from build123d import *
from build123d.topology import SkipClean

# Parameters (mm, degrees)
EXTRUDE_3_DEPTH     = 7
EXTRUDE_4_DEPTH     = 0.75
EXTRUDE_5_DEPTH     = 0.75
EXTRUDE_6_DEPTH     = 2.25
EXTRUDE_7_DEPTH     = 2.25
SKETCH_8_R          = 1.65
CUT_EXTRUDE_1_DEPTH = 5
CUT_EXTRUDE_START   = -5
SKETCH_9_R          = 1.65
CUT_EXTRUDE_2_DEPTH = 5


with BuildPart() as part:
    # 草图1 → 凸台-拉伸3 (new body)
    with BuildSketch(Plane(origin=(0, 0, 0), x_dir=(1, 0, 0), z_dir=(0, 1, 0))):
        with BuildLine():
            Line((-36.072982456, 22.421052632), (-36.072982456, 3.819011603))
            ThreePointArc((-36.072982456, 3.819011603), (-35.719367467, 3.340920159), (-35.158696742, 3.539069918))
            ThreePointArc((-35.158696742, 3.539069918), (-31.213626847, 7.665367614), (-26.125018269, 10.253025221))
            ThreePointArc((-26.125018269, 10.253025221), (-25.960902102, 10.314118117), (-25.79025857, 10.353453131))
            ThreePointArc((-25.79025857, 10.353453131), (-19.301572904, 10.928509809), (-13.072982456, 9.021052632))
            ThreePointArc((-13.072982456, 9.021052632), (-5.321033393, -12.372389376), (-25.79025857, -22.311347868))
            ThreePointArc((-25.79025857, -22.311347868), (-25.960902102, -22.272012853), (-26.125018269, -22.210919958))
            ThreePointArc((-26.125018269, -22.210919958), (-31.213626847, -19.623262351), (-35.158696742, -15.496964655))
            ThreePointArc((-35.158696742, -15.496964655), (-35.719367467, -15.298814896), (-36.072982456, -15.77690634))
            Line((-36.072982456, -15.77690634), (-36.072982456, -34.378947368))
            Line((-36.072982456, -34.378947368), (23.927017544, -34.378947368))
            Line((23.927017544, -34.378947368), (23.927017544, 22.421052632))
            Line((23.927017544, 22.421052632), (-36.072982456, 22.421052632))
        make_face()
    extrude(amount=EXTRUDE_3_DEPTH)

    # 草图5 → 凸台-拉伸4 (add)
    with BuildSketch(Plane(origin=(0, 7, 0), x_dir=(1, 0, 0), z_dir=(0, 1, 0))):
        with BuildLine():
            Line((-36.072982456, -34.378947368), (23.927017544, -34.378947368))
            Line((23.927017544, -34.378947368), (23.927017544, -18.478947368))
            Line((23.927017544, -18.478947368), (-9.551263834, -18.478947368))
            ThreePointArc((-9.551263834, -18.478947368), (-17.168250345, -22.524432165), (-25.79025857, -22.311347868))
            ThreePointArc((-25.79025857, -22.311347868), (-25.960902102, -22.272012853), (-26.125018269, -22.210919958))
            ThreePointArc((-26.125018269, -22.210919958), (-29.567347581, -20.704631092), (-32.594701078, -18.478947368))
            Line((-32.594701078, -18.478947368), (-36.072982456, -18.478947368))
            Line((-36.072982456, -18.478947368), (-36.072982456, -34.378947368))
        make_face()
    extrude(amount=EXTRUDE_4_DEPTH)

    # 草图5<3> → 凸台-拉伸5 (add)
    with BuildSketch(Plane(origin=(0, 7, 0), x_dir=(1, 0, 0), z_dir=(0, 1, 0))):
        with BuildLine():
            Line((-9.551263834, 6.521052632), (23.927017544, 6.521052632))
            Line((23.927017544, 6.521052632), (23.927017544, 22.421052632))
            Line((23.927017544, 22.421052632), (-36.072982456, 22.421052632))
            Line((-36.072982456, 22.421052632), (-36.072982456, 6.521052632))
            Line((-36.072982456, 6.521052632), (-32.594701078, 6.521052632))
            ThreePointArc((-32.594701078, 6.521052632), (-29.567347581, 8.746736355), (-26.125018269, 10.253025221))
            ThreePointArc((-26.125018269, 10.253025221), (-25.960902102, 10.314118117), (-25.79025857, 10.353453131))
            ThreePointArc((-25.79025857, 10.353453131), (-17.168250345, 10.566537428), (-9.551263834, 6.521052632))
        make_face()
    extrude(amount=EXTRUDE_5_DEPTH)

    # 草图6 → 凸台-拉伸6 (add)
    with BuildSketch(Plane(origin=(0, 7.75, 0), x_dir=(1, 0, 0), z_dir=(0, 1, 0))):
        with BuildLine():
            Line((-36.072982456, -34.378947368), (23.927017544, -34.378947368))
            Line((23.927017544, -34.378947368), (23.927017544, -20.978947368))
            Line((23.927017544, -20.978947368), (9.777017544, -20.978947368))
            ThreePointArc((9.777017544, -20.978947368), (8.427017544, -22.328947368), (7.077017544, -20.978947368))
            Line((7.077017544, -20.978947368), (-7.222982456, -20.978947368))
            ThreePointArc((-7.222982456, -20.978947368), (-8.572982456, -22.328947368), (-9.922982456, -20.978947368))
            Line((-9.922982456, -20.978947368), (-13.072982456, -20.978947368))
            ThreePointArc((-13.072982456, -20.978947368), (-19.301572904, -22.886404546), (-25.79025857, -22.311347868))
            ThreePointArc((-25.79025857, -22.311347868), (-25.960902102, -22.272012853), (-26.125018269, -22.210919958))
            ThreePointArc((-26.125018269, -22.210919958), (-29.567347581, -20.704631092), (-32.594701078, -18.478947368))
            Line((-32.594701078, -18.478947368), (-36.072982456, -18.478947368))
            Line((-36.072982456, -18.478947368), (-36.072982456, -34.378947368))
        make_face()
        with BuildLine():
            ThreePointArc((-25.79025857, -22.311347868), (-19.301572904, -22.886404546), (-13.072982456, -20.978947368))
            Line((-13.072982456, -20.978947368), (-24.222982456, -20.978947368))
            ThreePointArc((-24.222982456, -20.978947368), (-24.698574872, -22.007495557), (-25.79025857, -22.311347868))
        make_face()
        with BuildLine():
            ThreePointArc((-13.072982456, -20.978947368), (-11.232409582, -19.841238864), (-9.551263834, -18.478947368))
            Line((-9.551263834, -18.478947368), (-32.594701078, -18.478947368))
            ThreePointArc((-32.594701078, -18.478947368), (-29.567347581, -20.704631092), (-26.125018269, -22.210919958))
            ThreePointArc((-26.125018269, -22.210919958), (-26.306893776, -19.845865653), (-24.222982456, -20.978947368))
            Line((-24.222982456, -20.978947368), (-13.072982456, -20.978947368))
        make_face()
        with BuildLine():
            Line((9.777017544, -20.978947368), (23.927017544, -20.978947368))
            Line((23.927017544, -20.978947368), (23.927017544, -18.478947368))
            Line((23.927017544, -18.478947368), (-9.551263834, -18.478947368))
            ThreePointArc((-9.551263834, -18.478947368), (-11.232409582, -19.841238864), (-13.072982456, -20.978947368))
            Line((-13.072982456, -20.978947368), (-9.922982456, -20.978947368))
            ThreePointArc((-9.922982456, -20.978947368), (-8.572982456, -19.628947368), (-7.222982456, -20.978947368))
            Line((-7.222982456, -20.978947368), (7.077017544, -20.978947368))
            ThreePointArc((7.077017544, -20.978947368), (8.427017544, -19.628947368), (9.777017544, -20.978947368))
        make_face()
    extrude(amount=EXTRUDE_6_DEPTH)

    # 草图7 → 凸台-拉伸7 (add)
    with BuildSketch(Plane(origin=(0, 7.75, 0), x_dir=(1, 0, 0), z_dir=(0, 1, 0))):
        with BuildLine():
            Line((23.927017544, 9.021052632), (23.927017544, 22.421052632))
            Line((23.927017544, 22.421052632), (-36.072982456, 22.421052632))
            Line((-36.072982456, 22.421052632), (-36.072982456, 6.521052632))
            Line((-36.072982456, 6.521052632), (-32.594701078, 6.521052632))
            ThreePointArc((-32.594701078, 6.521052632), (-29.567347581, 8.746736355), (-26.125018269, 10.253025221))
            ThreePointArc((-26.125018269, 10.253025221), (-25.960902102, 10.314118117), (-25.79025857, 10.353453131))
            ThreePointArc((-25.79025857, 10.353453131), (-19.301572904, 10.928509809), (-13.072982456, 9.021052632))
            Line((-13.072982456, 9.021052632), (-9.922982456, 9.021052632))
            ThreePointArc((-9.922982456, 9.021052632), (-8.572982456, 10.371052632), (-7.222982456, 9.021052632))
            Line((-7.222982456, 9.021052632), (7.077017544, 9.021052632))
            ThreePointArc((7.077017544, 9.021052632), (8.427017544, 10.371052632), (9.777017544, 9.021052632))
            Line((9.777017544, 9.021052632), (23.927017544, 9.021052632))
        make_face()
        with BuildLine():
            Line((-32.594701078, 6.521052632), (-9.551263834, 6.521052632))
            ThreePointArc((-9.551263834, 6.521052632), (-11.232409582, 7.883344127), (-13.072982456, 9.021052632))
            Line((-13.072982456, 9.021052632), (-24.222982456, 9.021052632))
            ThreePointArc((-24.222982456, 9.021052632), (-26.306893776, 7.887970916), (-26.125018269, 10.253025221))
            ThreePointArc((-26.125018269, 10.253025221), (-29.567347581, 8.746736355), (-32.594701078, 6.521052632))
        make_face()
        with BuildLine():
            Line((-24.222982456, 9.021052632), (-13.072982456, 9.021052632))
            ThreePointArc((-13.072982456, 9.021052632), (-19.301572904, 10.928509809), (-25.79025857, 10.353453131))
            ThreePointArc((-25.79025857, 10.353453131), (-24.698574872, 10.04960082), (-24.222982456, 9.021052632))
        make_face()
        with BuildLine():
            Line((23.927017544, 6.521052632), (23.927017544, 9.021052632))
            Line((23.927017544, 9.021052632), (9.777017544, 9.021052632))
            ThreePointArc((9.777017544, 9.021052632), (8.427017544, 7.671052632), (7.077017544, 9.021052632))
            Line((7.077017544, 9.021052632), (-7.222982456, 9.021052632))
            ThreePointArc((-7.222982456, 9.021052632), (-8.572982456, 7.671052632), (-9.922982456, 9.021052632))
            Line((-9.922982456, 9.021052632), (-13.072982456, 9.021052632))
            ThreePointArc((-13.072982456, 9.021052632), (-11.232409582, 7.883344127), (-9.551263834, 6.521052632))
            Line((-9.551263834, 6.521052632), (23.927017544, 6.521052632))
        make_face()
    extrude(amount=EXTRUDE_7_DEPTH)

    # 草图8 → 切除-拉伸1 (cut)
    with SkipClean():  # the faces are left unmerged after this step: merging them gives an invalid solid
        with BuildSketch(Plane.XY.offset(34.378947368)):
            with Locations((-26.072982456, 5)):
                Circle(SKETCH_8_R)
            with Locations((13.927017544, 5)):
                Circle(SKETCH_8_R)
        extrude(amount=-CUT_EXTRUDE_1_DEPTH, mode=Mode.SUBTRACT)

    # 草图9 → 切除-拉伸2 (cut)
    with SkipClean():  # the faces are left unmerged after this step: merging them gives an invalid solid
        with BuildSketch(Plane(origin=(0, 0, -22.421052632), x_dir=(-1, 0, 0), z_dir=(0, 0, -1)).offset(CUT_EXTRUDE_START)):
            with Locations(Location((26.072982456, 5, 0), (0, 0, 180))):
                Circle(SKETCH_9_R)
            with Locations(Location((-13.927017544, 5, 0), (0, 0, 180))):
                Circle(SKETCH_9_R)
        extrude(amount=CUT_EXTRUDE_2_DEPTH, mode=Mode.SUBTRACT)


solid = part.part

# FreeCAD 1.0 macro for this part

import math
import FreeCAD as App
import Part
import Sketcher

V = App.Vector
Q = App.Units.Quantity

doc = App.newDocument("Part")
body = doc.addObject("PartDesign::Body", "Body")

sketch1 = body.newObject("Sketcher::SketchObject", "Sketch")
sketch1.AttachmentSupport = (doc.getObject("XZ_Plane"), [""])
sketch1.MapMode = "FlatFace"
sketch1.addGeometry([
    Part.LineSegment(V(-36.072982, -22.421053, 0), V(-36.072982, -3.819012, 0)),
    Part.ArcOfCircle(Part.Circle(V(-35.572982, -3.819012, 0), V(0, 0, 1), 0.5), math.radians(34.047732), math.radians(180)),
    Part.ArcOfCircle(Part.Circle(V(-21.072982, 5.978947, 0), V(0, 0, 1), 17), math.radians(-145.952268), math.radians(-107.28822)),
    Part.ArcOfCircle(Part.Circle(V(-25.572982, -9.021053, 0), V(0, 0, 1), 1.35), math.radians(-114.136721), math.radians(-99.261767)),
    Part.ArcOfCircle(Part.Circle(V(-21.072982, 5.978947, 0), V(0, 0, 1), 17), math.radians(-106.110268), math.radians(-61.927513)),
    Part.ArcOfCircle(Part.Circle(V(-21.072982, 5.978947, 0), V(0, 0, 1), 17), math.radians(-61.927513), math.radians(106.110268)),
    Part.ArcOfCircle(Part.Circle(V(-25.572982, 20.978947, 0), V(0, 0, 1), 1.35), math.radians(99.261768), math.radians(114.136721)),
    Part.ArcOfCircle(Part.Circle(V(-21.072982, 5.978947, 0), V(0, 0, 1), 17), math.radians(107.28822), math.radians(145.952268)),
    Part.ArcOfCircle(Part.Circle(V(-35.572982, 15.776906, 0), V(0, 0, 1), 0.5), math.radians(180), math.radians(325.952268)),
    Part.LineSegment(V(-36.072982, 15.776906, 0), V(-36.072982, 34.378947, 0)),
    Part.LineSegment(V(-36.072982, 34.378947, 0), V(23.927018, 34.378947, 0)),
    Part.LineSegment(V(23.927018, 34.378947, 0), V(23.927018, -22.421053, 0)),
    Part.LineSegment(V(23.927018, -22.421053, 0), V(-36.072982, -22.421053, 0)),
], False)
sketch1.addConstraint([
    Sketcher.Constraint("Tangent", 0, 2, 1, 2),
    Sketcher.Constraint("Tangent", 1, 1, 2, 1),
    Sketcher.Constraint("Coincident", 2, 2, 3, 1),
    Sketcher.Constraint("Coincident", 3, 2, 4, 1),
    Sketcher.Constraint("Tangent", 4, 2, 5, 1),
    Sketcher.Constraint("Coincident", 5, 2, 6, 1),
    Sketcher.Constraint("Coincident", 6, 2, 7, 1),
    Sketcher.Constraint("Tangent", 7, 2, 8, 2),
    Sketcher.Constraint("Tangent", 8, 1, 9, 1),
    Sketcher.Constraint("Coincident", 9, 2, 10, 1),
    Sketcher.Constraint("Coincident", 10, 2, 11, 1),
    Sketcher.Constraint("Coincident", 11, 2, 12, 1),
    Sketcher.Constraint("Coincident", 12, 2, 0, 1),
    Sketcher.Constraint("Vertical", 0),
    Sketcher.Constraint("Vertical", 9),
    Sketcher.Constraint("Horizontal", 10),
    Sketcher.Constraint("Vertical", 11),
    Sketcher.Constraint("Horizontal", 12),
    Sketcher.Constraint("Coincident", 4, 3, 2, 3),
    Sketcher.Constraint("Coincident", 7, 3, 2, 3),
    Sketcher.Constraint("Equal", 2, 4),
    Sketcher.Constraint("Equal", 4, 5),
    Sketcher.Constraint("Equal", 3, 6),
    Sketcher.Constraint("Equal", 5, 7),
    Sketcher.Constraint("Equal", 1, 8),
    Sketcher.Constraint("Horizontal", 3, 3, 4, 2),
    Sketcher.Constraint("Vertical", 3, 3, 6, 3),
    Sketcher.Constraint("Vertical", 1, 3, 8, 3),
    Sketcher.Constraint("Vertical", 3, 2, 5, 2),
    Sketcher.Constraint("Equal", 0, 9),
    Sketcher.Constraint("Radius", 2, Q("17 mm")),
    Sketcher.Constraint("Radius", 1, Q("0.5 mm")),
    Sketcher.Constraint("DistanceX", 10, 1, 10, 2, Q("60 mm")),
    Sketcher.Constraint("Radius", 3, Q("1.35 mm")),
    Sketcher.Constraint("DistanceY", 11, 2, 11, 1, Q("56.8 mm")),
    Sketcher.Constraint("DistanceX", 1, 3, 3, 3, Q("10 mm")),
    Sketcher.Constraint("DistanceY", 3, 3, 2, 3, Q("15 mm")),
    Sketcher.Constraint("DistanceX", 0, 2, 5, 3, Q("15 mm")),
    Sketcher.Constraint("DistanceY", 1, 3, -1, 1, Q("3.819012 mm")),
    Sketcher.Constraint("DistanceX", 2, 2, -1, 1, Q("26.125018 mm")),
])
pad1 = body.newObject("PartDesign::Pad", "Pad")
pad1.Profile = sketch1
pad1.Length = 7
pad1.Reversed = True

sketch2 = body.newObject("Sketcher::SketchObject", "Sketch001")
sketch2.AttachmentSupport = (doc.getObject("XZ_Plane"), [""])
sketch2.MapMode = "FlatFace"
sketch2.AttachmentOffset = App.Placement(V(0, 0, -7), App.Rotation())
sketch2.addGeometry([
    Part.LineSegment(V(-36.072982, 34.378947, 0), V(23.927018, 34.378947, 0)),
    Part.LineSegment(V(23.927018, 34.378947, 0), V(23.927018, 18.478947, 0)),
    Part.LineSegment(V(23.927018, 18.478947, 0), V(-9.551264, 18.478947, 0)),
    Part.ArcOfCircle(Part.Circle(V(-21.072982, 5.978947, 0), V(0, 0, 1), 17), math.radians(47.332075), math.radians(106.110268)),
    Part.ArcOfCircle(Part.Circle(V(-25.572982, 20.978947, 0), V(0, 0, 1), 1.35), math.radians(99.261768), math.radians(114.136721)),
    Part.ArcOfCircle(Part.Circle(V(-21.072982, 5.978947, 0), V(0, 0, 1), 17), math.radians(107.28822), math.radians(132.667926)),
    Part.LineSegment(V(-32.594701, 18.478947, 0), V(-36.072982, 18.478947, 0)),
    Part.LineSegment(V(-36.072982, 18.478947, 0), V(-36.072982, 34.378947, 0)),
], False)
sketch2.addConstraint([
    Sketcher.Constraint("Coincident", 0, 2, 1, 1),
    Sketcher.Constraint("Coincident", 1, 2, 2, 1),
    Sketcher.Constraint("Coincident", 2, 2, 3, 1),
    Sketcher.Constraint("Coincident", 3, 2, 4, 1),
    Sketcher.Constraint("Coincident", 4, 2, 5, 1),
    Sketcher.Constraint("Coincident", 5, 2, 6, 1),
    Sketcher.Constraint("Coincident", 6, 2, 7, 1),
    Sketcher.Constraint("Coincident", 7, 2, 0, 1),
    Sketcher.Constraint("Horizontal", 0),
    Sketcher.Constraint("Vertical", 1),
    Sketcher.Constraint("Horizontal", 2),
    Sketcher.Constraint("Horizontal", 6),
    Sketcher.Constraint("Vertical", 7),
    Sketcher.Constraint("Coincident", 5, 3, 3, 3),
    Sketcher.Constraint("Equal", 3, 5),
    Sketcher.Constraint("Horizontal", 2, 2, 5, 2),
    Sketcher.Constraint("Radius", 3, Q("17 mm")),
    Sketcher.Constraint("DistanceX", 0, 1, 0, 2, Q("60 mm")),
    Sketcher.Constraint("Radius", 4, Q("1.35 mm")),
    Sketcher.Constraint("DistanceY", 1, 2, 1, 1, Q("15.9 mm")),
    Sketcher.Constraint("DistanceY", 3, 3, 4, 3, Q("15 mm")),
    Sketcher.Constraint("DistanceX", 3, 3, 0, 2, Q("45 mm")),
    Sketcher.Constraint("DistanceX", 4, 3, 3, 3, Q("4.5 mm")),
    Sketcher.Constraint("DistanceY", 4, 3, 0, 2, Q("13.4 mm")),
    Sketcher.Constraint("DistanceX", 5, 2, -1, 1, Q("32.594701 mm")),
    Sketcher.Constraint("DistanceY", -1, 1, 4, 2, Q("22.21092 mm")),
])
pad2 = body.newObject("PartDesign::Pad", "Pad001")
pad2.Profile = sketch2
pad2.Length = 0.75
pad2.Reversed = True

sketch3 = body.newObject("Sketcher::SketchObject", "Sketch002")
sketch3.AttachmentSupport = (doc.getObject("XZ_Plane"), [""])
sketch3.MapMode = "FlatFace"
sketch3.AttachmentOffset = App.Placement(V(0, 0, -7), App.Rotation())
sketch3.addGeometry([
    Part.LineSegment(V(-9.551264, -6.521053, 0), V(23.927018, -6.521053, 0)),
    Part.LineSegment(V(23.927018, -6.521053, 0), V(23.927018, -22.421053, 0)),
    Part.LineSegment(V(23.927018, -22.421053, 0), V(-36.072982, -22.421053, 0)),
    Part.LineSegment(V(-36.072982, -22.421053, 0), V(-36.072982, -6.521053, 0)),
    Part.LineSegment(V(-36.072982, -6.521053, 0), V(-32.594701, -6.521053, 0)),
    Part.ArcOfCircle(Part.Circle(V(-21.072982, 5.978947, 0), V(0, 0, 1), 17), math.radians(-132.667925), math.radians(-107.28822)),
    Part.ArcOfCircle(Part.Circle(V(-25.572982, -9.021053, 0), V(0, 0, 1), 1.35), math.radians(-114.136721), math.radians(-99.261767)),
    Part.ArcOfCircle(Part.Circle(V(-21.072982, 5.978947, 0), V(0, 0, 1), 17), math.radians(-106.110268), math.radians(-47.332075)),
], False)
sketch3.addConstraint([
    Sketcher.Constraint("Coincident", 0, 2, 1, 1),
    Sketcher.Constraint("Coincident", 1, 2, 2, 1),
    Sketcher.Constraint("Coincident", 2, 2, 3, 1),
    Sketcher.Constraint("Coincident", 3, 2, 4, 1),
    Sketcher.Constraint("Coincident", 4, 2, 5, 1),
    Sketcher.Constraint("Coincident", 5, 2, 6, 1),
    Sketcher.Constraint("Coincident", 6, 2, 7, 1),
    Sketcher.Constraint("Coincident", 7, 2, 0, 1),
    Sketcher.Constraint("Horizontal", 0),
    Sketcher.Constraint("Vertical", 1),
    Sketcher.Constraint("Horizontal", 2),
    Sketcher.Constraint("Vertical", 3),
    Sketcher.Constraint("Horizontal", 4),
    Sketcher.Constraint("Coincident", 7, 3, 5, 3),
    Sketcher.Constraint("Equal", 5, 7),
    Sketcher.Constraint("Horizontal", 0, 2, 3, 2),
    Sketcher.Constraint("Radius", 5, Q("17 mm")),
    Sketcher.Constraint("DistanceX", 2, 2, 2, 1, Q("60 mm")),
    Sketcher.Constraint("Radius", 6, Q("1.35 mm")),
    Sketcher.Constraint("DistanceY", 1, 2, 1, 1, Q("15.9 mm")),
    Sketcher.Constraint("DistanceY", 6, 3, 5, 3, Q("15 mm")),
    Sketcher.Constraint("DistanceX", 5, 3, 0, 2, Q("45 mm")),
    Sketcher.Constraint("DistanceX", 6, 3, 5, 3, Q("4.5 mm")),
    Sketcher.Constraint("DistanceY", 0, 2, 5, 3, Q("12.5 mm")),
    Sketcher.Constraint("DistanceX", 4, 2, -1, 1, Q("32.594701 mm")),
    Sketcher.Constraint("DistanceY", -1, 1, 5, 3, Q("5.978947 mm")),
])
pad3 = body.newObject("PartDesign::Pad", "Pad002")
pad3.Profile = sketch3
pad3.Length = 0.75
pad3.Reversed = True

sketch4 = body.newObject("Sketcher::SketchObject", "Sketch003")
sketch4.AttachmentSupport = (doc.getObject("XZ_Plane"), [""])
sketch4.MapMode = "FlatFace"
sketch4.AttachmentOffset = App.Placement(V(0, 0, -7.75), App.Rotation())
sketch4.addGeometry([
    Part.LineSegment(V(-36.072982, 34.378947, 0), V(23.927018, 34.378947, 0)),
    Part.LineSegment(V(23.927018, 34.378947, 0), V(23.927018, 18.478947, 0)),
    Part.LineSegment(V(23.927018, 18.478947, 0), V(-36.072982, 18.478947, 0)),
    Part.LineSegment(V(-36.072982, 18.478947, 0), V(-36.072982, 34.378947, 0)),
    Part.Circle(V(8.427018, 20.978947, 0), V(0, 0, 1), 1.35),
    Part.Circle(V(-8.572982, 20.978947, 0), V(0, 0, 1), 1.35),
    Part.ArcOfCircle(Part.Circle(V(-25.572982, 20.978947, 0), V(0, 0, 1), 1.35), math.radians(0), math.radians(99.261767)),
    Part.ArcOfCircle(Part.Circle(V(-25.572982, 20.978947, 0), V(0, 0, 1), 1.35), math.radians(99.261768), math.radians(114.136721)),
    Part.ArcOfCircle(Part.Circle(V(-25.572982, 20.978947, 0), V(0, 0, 1), 1.35), math.radians(114.136721), math.radians(360)),
], False)
sketch4.addConstraint([
    Sketcher.Constraint("Coincident", 0, 2, 1, 1),
    Sketcher.Constraint("Coincident", 1, 2, 2, 1),
    Sketcher.Constraint("Coincident", 2, 2, 3, 1),
    Sketcher.Constraint("Coincident", 3, 2, 0, 1),
    Sketcher.Constraint("Tangent", 6, 2, 7, 1),
    Sketcher.Constraint("Tangent", 7, 2, 8, 1),
    Sketcher.Constraint("Tangent", 8, 2, 6, 1),
    Sketcher.Constraint("Horizontal", 0),
    Sketcher.Constraint("Vertical", 1),
    Sketcher.Constraint("Horizontal", 2),
    Sketcher.Constraint("Vertical", 3),
    Sketcher.Constraint("Equal", 4, 5),
    Sketcher.Constraint("Equal", 5, 6),
    Sketcher.Constraint("Horizontal", 4, 3, 5, 3),
    Sketcher.Constraint("Horizontal", 5, 3, 6, 3),
    Sketcher.Constraint("Horizontal", 7, 3, 8, 2),
    Sketcher.Constraint("Diameter", 4, Q("2.7 mm")),
    Sketcher.Constraint("DistanceX", 0, 1, 0, 2, Q("60 mm")),
    Sketcher.Constraint("DistanceY", 1, 2, 1, 1, Q("15.9 mm")),
    Sketcher.Constraint("DistanceX", 5, 3, 4, 3, Q("17 mm")),
    Sketcher.Constraint("DistanceX", 6, 3, 5, 3, Q("17 mm")),
    Sketcher.Constraint("DistanceX", 4, 3, 0, 2, Q("15.5 mm")),
    Sketcher.Constraint("DistanceY", 4, 3, 0, 2, Q("13.4 mm")),
    Sketcher.Constraint("DistanceY", 8, 3, 6, 2, Q("1.3324 mm")),
    Sketcher.Constraint("DistanceX", 6, 2, -1, 1, Q("25.790259 mm")),
    Sketcher.Constraint("DistanceX", 7, 2, -1, 1, Q("26.125018 mm")),
    Sketcher.Constraint("DistanceY", -1, 1, 7, 2, Q("22.21092 mm")),
])
pad4 = body.newObject("PartDesign::Pad", "Pad003")
pad4.Profile = sketch4
pad4.Length = 2.25
pad4.Reversed = True

sketch5 = body.newObject("Sketcher::SketchObject", "Sketch004")
sketch5.AttachmentSupport = (doc.getObject("XZ_Plane"), [""])
sketch5.MapMode = "FlatFace"
sketch5.AttachmentOffset = App.Placement(V(0, 0, -7.75), App.Rotation())
sketch5.addGeometry([
    Part.LineSegment(V(23.927018, -22.421053, 0), V(-36.072982, -22.421053, 0)),
    Part.LineSegment(V(-36.072982, -22.421053, 0), V(-36.072982, -6.521053, 0)),
    Part.LineSegment(V(-36.072982, -6.521053, 0), V(23.927018, -6.521053, 0)),
    Part.LineSegment(V(23.927018, -6.521053, 0), V(23.927018, -22.421053, 0)),
    Part.Circle(V(-8.572982, -9.021053, 0), V(0, 0, 1), 1.35),
    Part.Circle(V(8.427018, -9.021053, 0), V(0, 0, 1), 1.35),
    Part.ArcOfCircle(Part.Circle(V(-25.572982, -9.021053, 0), V(0, 0, 1), 1.35), math.radians(-114.136721), math.radians(-99.261767)),
    Part.ArcOfCircle(Part.Circle(V(-25.572982, -9.021053, 0), V(0, 0, 1), 1.35), math.radians(-99.261767), math.radians(0)),
    Part.ArcOfCircle(Part.Circle(V(-25.572982, -9.021053, 0), V(0, 0, 1), 1.35), math.radians(0), math.radians(245.863279)),
], False)
sketch5.addConstraint([
    Sketcher.Constraint("Coincident", 0, 2, 1, 1),
    Sketcher.Constraint("Coincident", 1, 2, 2, 1),
    Sketcher.Constraint("Coincident", 2, 2, 3, 1),
    Sketcher.Constraint("Coincident", 3, 2, 0, 1),
    Sketcher.Constraint("Tangent", 6, 2, 7, 1),
    Sketcher.Constraint("Tangent", 7, 2, 8, 1),
    Sketcher.Constraint("Tangent", 8, 2, 6, 1),
    Sketcher.Constraint("Horizontal", 0),
    Sketcher.Constraint("Vertical", 1),
    Sketcher.Constraint("Horizontal", 2),
    Sketcher.Constraint("Vertical", 3),
    Sketcher.Constraint("Equal", 4, 5),
    Sketcher.Constraint("Equal", 5, 6),
    Sketcher.Constraint("Horizontal", 4, 3, 5, 3),
    Sketcher.Constraint("Horizontal", 5, 3, 6, 3),
    Sketcher.Constraint("Horizontal", 8, 3, 7, 2),
    Sketcher.Constraint("Diameter", 4, Q("2.7 mm")),
    Sketcher.Constraint("DistanceX", 0, 2, 0, 1, Q("60 mm")),
    Sketcher.Constraint("DistanceY", 1, 1, 1, 2, Q("15.9 mm")),
    Sketcher.Constraint("DistanceX", 4, 3, 5, 3, Q("17 mm")),
    Sketcher.Constraint("DistanceX", 6, 3, 4, 3, Q("17 mm")),
    Sketcher.Constraint("DistanceX", 0, 2, 6, 3, Q("10.5 mm")),
    Sketcher.Constraint("DistanceY", 0, 2, 6, 3, Q("13.4 mm")),
    Sketcher.Constraint("DistanceY", 6, 2, 6, 3, Q("1.3324 mm")),
    Sketcher.Constraint("DistanceX", 6, 2, -1, 1, Q("25.790259 mm")),
    Sketcher.Constraint("DistanceX", 8, 2, -1, 1, Q("26.125018 mm")),
    Sketcher.Constraint("DistanceY", 4, 3, -1, 1, Q("9.021053 mm")),
])
pad5 = body.newObject("PartDesign::Pad", "Pad004")
pad5.Profile = sketch5
pad5.Length = 2.25
pad5.Reversed = True

sketch6 = body.newObject("Sketcher::SketchObject", "Sketch005")
sketch6.AttachmentSupport = (doc.getObject("XY_Plane"), [""])
sketch6.MapMode = "FlatFace"
sketch6.AttachmentOffset = App.Placement(V(0, 0, 34.378947), App.Rotation())
sketch6.addGeometry([
    Part.Circle(V(-26.072982, 5, 0), V(0, 0, 1), 1.65),
    Part.Circle(V(13.927018, 5, 0), V(0, 0, 1), 1.65),
], False)
sketch6.addConstraint([
    Sketcher.Constraint("Equal", 0, 1),
    Sketcher.Constraint("Horizontal", 0, 3, 1, 3),
    Sketcher.Constraint("Diameter", 0, Q("3.3 mm")),
    Sketcher.Constraint("DistanceY", -1, 1, 0, 3, Q("5 mm")),
    Sketcher.Constraint("DistanceX", 0, 3, 1, 3, Q("40 mm")),
    Sketcher.Constraint("DistanceX", 0, 3, -1, 1, Q("26.072982 mm")),
])
pocket1 = body.newObject("PartDesign::Pocket", "Pocket")
pocket1.Profile = sketch6
pocket1.Length = 5

sketch7 = body.newObject("Sketcher::SketchObject", "Sketch006")
sketch7.AttachmentSupport = (doc.getObject("XY_Plane"), [""])
sketch7.MapMode = "FlatFace"
sketch7.AttachmentOffset = App.Placement(V(0, 0, -17.421053), App.Rotation())
sketch7.addGeometry([
    Part.Circle(V(-26.072982, 5, 0), V(0, 0, 1), 1.65),
    Part.Circle(V(13.927018, 5, 0), V(0, 0, 1), 1.65),
], False)
sketch7.addConstraint([
    Sketcher.Constraint("Equal", 0, 1),
    Sketcher.Constraint("Horizontal", 0, 3, 1, 3),
    Sketcher.Constraint("Diameter", 0, Q("3.3 mm")),
    Sketcher.Constraint("DistanceY", -1, 1, 0, 3, Q("5 mm")),
    Sketcher.Constraint("DistanceX", 0, 3, 1, 3, Q("40 mm")),
    Sketcher.Constraint("DistanceX", 0, 3, -1, 1, Q("26.072982 mm")),
])
pocket2 = body.newObject("PartDesign::Pocket", "Pocket001")
pocket2.Profile = sketch7
pocket2.Length = 5

doc.recompute()
